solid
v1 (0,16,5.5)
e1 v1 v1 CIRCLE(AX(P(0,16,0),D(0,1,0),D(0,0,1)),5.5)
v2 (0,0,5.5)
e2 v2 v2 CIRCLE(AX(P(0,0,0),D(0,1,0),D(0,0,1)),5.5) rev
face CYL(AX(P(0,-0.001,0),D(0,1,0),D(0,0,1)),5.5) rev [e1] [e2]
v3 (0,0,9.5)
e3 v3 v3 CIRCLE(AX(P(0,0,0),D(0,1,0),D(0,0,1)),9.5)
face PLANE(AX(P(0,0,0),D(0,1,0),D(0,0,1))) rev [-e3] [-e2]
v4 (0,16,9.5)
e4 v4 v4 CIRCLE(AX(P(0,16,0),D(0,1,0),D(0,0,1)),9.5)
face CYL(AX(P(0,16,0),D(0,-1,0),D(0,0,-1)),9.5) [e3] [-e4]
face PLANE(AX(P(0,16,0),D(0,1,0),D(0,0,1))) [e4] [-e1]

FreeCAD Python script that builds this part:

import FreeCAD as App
import Part
import Sketcher

V = App.Vector
Q = App.Units.Quantity

doc = App.newDocument("Part")
body = doc.addObject("PartDesign::Body", "Body")

# Sketch on XZ plane
sketch1 = doc.addObject("Sketcher::SketchObject", "Sketch")
body.addObject(sketch1)
sketch1.AttachmentSupport = (doc.XZ_Plane, [""])
sketch1.MapMode = "FlatFace"
sketch1.addGeometry(Part.Circle(V(0, 0, 0), V(0, 0, 1), 10), False)
sketch1.addConstraint(Sketcher.Constraint("Coincident", 0, 3, -1, 1))
sketch1.addConstraint(Sketcher.Constraint("Diameter", 0, Q("19 mm")))
pad1 = doc.addObject("PartDesign::Pad", "Pad")
body.addObject(pad1)
pad1.Profile = sketch1
pad1.Length = 16
pad1.Reversed = True

# Sketch on XZ plane
sketch2 = doc.addObject("Sketcher::SketchObject", "Sketch001")
body.addObject(sketch2)
sketch2.AttachmentSupport = (doc.XZ_Plane, [""])
sketch2.MapMode = "FlatFace"
sketch2.AttachmentOffset = App.Placement(V(0, 0, -16), App.Rotation())
sketch2.addGeometry(Part.Circle(V(0, 0, 0), V(0, 0, 1), 6), False)
sketch2.addConstraint(Sketcher.Constraint("Coincident", 0, 3, -1, 1))
sketch2.addConstraint(Sketcher.Constraint("Diameter", 0, Q("11 mm")))
pocket1 = doc.addObject("PartDesign::Pocket", "Pocket")
body.addObject(pocket1)
pocket1.Profile = sketch2
pocket1.Type = "UpToFirst"
pocket1.Reversed = True

doc.recompute()
